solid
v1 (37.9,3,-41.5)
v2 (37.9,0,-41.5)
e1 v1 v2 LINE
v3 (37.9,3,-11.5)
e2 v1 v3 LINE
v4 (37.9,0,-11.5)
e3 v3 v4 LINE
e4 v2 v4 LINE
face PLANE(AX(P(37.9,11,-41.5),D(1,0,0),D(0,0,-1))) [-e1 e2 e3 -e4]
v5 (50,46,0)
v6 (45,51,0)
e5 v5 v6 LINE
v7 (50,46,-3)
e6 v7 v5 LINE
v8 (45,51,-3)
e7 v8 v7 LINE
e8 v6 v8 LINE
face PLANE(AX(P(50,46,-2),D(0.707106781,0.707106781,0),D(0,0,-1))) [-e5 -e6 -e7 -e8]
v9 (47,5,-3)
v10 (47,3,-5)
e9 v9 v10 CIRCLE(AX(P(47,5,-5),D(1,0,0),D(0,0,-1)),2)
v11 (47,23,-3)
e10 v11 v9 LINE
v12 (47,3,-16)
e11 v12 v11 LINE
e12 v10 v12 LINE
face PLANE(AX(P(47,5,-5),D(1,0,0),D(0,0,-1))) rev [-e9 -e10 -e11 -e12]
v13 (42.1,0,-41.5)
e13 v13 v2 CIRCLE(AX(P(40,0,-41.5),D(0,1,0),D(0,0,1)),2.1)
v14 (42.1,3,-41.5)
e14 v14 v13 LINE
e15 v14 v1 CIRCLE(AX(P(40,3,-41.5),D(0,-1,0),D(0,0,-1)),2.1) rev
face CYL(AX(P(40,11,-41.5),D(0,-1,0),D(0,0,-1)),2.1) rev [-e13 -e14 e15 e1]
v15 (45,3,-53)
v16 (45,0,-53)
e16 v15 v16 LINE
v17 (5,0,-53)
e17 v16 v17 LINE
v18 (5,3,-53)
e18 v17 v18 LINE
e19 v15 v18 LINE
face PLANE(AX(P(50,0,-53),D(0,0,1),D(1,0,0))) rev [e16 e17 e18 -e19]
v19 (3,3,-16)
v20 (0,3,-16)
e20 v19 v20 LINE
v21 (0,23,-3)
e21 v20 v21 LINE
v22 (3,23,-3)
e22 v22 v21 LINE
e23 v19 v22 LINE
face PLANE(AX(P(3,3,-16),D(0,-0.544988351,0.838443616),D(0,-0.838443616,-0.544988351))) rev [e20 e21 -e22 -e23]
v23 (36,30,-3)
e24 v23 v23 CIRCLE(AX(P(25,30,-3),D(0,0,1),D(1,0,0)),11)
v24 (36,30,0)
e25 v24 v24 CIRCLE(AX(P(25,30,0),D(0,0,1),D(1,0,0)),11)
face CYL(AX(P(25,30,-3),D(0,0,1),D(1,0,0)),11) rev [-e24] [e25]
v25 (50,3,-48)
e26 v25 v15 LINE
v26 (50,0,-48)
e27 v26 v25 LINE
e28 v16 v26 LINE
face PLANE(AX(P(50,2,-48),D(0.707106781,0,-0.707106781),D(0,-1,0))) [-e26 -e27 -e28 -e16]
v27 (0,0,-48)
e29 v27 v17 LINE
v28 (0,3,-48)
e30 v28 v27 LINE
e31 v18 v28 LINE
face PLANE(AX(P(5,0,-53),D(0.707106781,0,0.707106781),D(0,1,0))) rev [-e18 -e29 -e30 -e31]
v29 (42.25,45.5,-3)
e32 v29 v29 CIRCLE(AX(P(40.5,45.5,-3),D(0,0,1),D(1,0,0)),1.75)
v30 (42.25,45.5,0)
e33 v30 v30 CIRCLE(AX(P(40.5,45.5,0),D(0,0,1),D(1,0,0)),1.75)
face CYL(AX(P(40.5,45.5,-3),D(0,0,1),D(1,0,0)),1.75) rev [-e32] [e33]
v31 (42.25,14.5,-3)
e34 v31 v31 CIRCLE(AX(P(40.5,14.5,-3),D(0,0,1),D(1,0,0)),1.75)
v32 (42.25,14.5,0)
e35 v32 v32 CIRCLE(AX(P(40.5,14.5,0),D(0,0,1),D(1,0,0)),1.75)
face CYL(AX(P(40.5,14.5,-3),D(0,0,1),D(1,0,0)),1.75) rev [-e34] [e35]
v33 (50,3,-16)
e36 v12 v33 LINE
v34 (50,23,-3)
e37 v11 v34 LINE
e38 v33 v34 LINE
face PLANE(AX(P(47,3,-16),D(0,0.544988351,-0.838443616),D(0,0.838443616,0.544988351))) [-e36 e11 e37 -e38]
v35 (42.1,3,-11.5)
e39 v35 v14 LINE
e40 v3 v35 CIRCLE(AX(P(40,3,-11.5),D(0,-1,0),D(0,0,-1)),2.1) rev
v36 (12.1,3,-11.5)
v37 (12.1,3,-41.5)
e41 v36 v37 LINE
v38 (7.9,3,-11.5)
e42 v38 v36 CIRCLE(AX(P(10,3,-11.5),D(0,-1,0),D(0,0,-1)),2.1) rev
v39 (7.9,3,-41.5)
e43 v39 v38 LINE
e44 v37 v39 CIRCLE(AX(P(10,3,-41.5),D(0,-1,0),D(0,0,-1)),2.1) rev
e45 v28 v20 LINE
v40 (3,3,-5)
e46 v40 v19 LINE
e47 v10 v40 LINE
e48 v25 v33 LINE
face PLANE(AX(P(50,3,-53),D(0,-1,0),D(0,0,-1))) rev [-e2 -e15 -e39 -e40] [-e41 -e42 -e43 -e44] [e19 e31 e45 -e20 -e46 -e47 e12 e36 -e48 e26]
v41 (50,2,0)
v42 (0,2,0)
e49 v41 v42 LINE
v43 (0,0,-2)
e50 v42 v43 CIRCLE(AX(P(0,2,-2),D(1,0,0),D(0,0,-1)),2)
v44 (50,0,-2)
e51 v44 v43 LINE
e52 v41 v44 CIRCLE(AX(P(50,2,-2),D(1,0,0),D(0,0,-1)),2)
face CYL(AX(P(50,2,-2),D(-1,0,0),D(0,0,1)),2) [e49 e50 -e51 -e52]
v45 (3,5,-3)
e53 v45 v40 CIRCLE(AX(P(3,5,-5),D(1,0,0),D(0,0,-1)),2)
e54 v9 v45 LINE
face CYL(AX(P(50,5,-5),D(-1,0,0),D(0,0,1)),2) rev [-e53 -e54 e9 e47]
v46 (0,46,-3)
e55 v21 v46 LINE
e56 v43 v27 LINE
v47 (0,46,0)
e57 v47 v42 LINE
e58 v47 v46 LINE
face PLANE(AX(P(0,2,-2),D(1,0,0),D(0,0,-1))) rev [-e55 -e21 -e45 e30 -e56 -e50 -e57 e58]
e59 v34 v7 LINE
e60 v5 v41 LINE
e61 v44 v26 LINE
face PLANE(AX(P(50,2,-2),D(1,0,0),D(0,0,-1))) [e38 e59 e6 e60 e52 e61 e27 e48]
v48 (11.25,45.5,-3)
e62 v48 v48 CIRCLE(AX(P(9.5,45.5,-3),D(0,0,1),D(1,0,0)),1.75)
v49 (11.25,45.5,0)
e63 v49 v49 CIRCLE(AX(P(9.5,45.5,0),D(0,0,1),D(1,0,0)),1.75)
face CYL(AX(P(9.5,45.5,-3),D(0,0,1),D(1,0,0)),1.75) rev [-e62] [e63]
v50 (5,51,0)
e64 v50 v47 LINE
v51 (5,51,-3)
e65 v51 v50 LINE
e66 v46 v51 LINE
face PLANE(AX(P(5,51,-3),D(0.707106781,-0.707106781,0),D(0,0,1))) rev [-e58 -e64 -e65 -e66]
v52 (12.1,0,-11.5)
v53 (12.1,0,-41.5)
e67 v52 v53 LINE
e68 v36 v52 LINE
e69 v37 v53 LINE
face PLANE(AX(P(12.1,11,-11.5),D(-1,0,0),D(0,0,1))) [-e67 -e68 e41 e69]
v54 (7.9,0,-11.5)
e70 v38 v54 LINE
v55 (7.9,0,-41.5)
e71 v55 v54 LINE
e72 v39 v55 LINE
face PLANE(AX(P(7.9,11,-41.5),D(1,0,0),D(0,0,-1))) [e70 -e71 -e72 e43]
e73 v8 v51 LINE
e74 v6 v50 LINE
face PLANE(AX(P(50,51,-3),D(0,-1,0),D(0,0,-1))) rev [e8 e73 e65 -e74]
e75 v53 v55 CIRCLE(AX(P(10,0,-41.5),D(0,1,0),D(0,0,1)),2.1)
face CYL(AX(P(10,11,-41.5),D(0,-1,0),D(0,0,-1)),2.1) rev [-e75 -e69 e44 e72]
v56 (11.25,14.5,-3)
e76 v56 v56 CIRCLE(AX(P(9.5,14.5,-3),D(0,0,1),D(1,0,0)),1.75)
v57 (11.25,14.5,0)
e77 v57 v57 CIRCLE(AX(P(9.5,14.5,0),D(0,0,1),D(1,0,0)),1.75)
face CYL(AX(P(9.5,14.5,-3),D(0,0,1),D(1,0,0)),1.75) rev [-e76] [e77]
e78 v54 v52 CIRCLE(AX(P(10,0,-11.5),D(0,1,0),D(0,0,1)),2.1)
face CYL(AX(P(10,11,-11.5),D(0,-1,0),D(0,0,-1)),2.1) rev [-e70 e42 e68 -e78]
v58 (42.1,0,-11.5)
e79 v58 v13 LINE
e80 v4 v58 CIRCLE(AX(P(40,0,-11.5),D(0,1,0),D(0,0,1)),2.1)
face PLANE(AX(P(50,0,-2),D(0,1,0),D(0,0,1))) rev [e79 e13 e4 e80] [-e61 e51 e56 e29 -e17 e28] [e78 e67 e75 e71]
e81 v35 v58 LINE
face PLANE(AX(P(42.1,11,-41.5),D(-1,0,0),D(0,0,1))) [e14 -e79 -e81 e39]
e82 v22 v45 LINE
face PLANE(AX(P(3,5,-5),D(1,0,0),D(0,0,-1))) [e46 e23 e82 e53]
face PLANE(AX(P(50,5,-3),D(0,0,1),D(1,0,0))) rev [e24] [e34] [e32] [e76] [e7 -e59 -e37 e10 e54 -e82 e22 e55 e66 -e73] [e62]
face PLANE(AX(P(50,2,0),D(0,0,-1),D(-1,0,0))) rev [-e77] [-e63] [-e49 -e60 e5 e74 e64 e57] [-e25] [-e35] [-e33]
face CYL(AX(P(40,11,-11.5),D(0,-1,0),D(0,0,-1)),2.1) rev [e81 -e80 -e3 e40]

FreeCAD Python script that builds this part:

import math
import FreeCAD as App
import Part
import Sketcher

V = App.Vector
Q = App.Units.Quantity


def edges_at(feature, points):
    """Names of the edges that pass closest to the given points."""
    edges = feature.Shape.Edges
    near = lambda p: min(range(len(edges)), key=lambda i: edges[i].distToShape(Part.Vertex(*p))[0])
    return sorted({f"Edge{near(p) + 1}" for p in points})

doc = App.newDocument("Part")
body = doc.addObject("PartDesign::Body", "Body")

# Sketch on YZ plane
sketch1 = body.newObject("Sketcher::SketchObject", "Sketch")
sketch1.AttachmentSupport = (doc.getObject("YZ_Plane"), [""])
sketch1.MapMode = "FlatFace"
sketch1.addGeometry(Part.LineSegment(V(51, 0, 0), V(2, 0, 0)), False)
sketch1.addGeometry(Part.ArcOfCircle(Part.Circle(V(2, -2, 0), V(0, 0, 1), 2), math.radians(90), math.radians(180)), False)
sketch1.addGeometry(Part.LineSegment(V(0, -2, 0), V(0, -53, 0)), False)
sketch1.addGeometry(Part.LineSegment(V(0, -53, 0), V(3, -53, 0)), False)
sketch1.addGeometry(Part.LineSegment(V(3, -53, 0), V(3, -5, 0)), False)
sketch1.addGeometry(Part.ArcOfCircle(Part.Circle(V(5, -5, 0), V(0, 0, 1), 2), math.radians(90), math.radians(180)), False)
sketch1.addGeometry(Part.LineSegment(V(5, -3, 0), V(51, -3, 0)), False)
sketch1.addGeometry(Part.LineSegment(V(51, -3, 0), V(51, 0, 0)), False)
sketch1.addConstraint(Sketcher.Constraint("Tangent", 0, 2, 1, 1))
sketch1.addConstraint(Sketcher.Constraint("Tangent", 1, 2, 2, 1))
sketch1.addConstraint(Sketcher.Constraint("Coincident", 2, 2, 3, 1))
sketch1.addConstraint(Sketcher.Constraint("Coincident", 3, 2, 4, 1))
sketch1.addConstraint(Sketcher.Constraint("Tangent", 4, 2, 5, 2))
sketch1.addConstraint(Sketcher.Constraint("Tangent", 5, 1, 6, 1))
sketch1.addConstraint(Sketcher.Constraint("Coincident", 6, 2, 7, 1))
sketch1.addConstraint(Sketcher.Constraint("Coincident", 7, 2, 0, 1))
sketch1.addConstraint(Sketcher.Constraint("Horizontal", 0))
sketch1.addConstraint(Sketcher.Constraint("Vertical", 2))
sketch1.addConstraint(Sketcher.Constraint("Horizontal", 3))
sketch1.addConstraint(Sketcher.Constraint("Vertical", 4))
sketch1.addConstraint(Sketcher.Constraint("Horizontal", 6))
sketch1.addConstraint(Sketcher.Constraint("Vertical", 7))
sketch1.addConstraint(Sketcher.Constraint("Equal", 1, 5))
sketch1.addConstraint(Sketcher.Constraint("PointOnObject", 0, 2, -1))
sketch1.addConstraint(Sketcher.Constraint("PointOnObject", 1, 2, -2))
sketch1.addConstraint(Sketcher.Constraint("Equal", 3, 7))
sketch1.addConstraint(Sketcher.Constraint("Radius", 1, Q("2 mm")))
sketch1.addConstraint(Sketcher.Constraint("DistanceX", 0, 2, 0, 1, Q("49 mm")))
sketch1.addConstraint(Sketcher.Constraint("DistanceX", 3, 1, 3, 2, Q("3 mm")))
sketch1.addConstraint(Sketcher.Constraint("DistanceY", 2, 2, 2, 1, Q("51 mm")))
pad1 = body.newObject("PartDesign::Pad", "Pad")
pad1.Profile = sketch1
pad1.Length = 50

# Sketch on YZ plane
sketch2 = body.newObject("Sketcher::SketchObject", "Sketch001")
sketch2.AttachmentSupport = (doc.getObject("YZ_Plane"), [""])
sketch2.MapMode = "FlatFace"
sketch2.addGeometry(Part.LineSegment(V(23, -3, 0), V(5, -3, 0)), False)
sketch2.addGeometry(Part.ArcOfCircle(Part.Circle(V(5, -5, 0), V(0, 0, 1), 2), math.radians(90), math.radians(180)), False)
sketch2.addGeometry(Part.LineSegment(V(3, -5, 0), V(3, -16, 0)), False)
sketch2.addGeometry(Part.LineSegment(V(3, -16, 0), V(23, -3, 0)), False)
sketch2.addConstraint(Sketcher.Constraint("Tangent", 0, 2, 1, 1))
sketch2.addConstraint(Sketcher.Constraint("Tangent", 1, 2, 2, 1))
sketch2.addConstraint(Sketcher.Constraint("Coincident", 2, 2, 3, 1))
sketch2.addConstraint(Sketcher.Constraint("Coincident", 3, 2, 0, 1))
sketch2.addConstraint(Sketcher.Constraint("Horizontal", 0))
sketch2.addConstraint(Sketcher.Constraint("Vertical", 2))
sketch2.addConstraint(Sketcher.Constraint("Radius", 1, Q("2 mm")))
sketch2.addConstraint(Sketcher.Constraint("DistanceX", 0, 2, 0, 1, Q("18 mm")))
sketch2.addConstraint(Sketcher.Constraint("DistanceY", 2, 2, 2, 1, Q("11 mm")))
sketch2.addConstraint(Sketcher.Constraint("DistanceX", -1, 1, 1, 3, Q("5 mm")))
sketch2.addConstraint(Sketcher.Constraint("DistanceY", 1, 3, -1, 1, Q("5 mm")))
pad2 = body.newObject("PartDesign::Pad", "Pad001")
pad2.Profile = sketch2
pad2.Length = 3

# Sketch on YZ plane
sketch3 = body.newObject("Sketcher::SketchObject", "Sketch002")
sketch3.AttachmentSupport = (doc.getObject("YZ_Plane"), [""])
sketch3.MapMode = "FlatFace"
sketch3.AttachmentOffset = App.Placement(V(0, 0, 47), App.Rotation())
sketch3.addGeometry(Part.LineSegment(V(23, -3, 0), V(5, -3, 0)), False)
sketch3.addGeometry(Part.ArcOfCircle(Part.Circle(V(5, -5, 0), V(0, 0, 1), 2), math.radians(90), math.radians(180)), False)
sketch3.addGeometry(Part.LineSegment(V(3, -5, 0), V(3, -16, 0)), False)
sketch3.addGeometry(Part.LineSegment(V(3, -16, 0), V(23, -3, 0)), False)
sketch3.addConstraint(Sketcher.Constraint("Tangent", 0, 2, 1, 1))
sketch3.addConstraint(Sketcher.Constraint("Tangent", 1, 2, 2, 1))
sketch3.addConstraint(Sketcher.Constraint("Coincident", 2, 2, 3, 1))
sketch3.addConstraint(Sketcher.Constraint("Coincident", 3, 2, 0, 1))
sketch3.addConstraint(Sketcher.Constraint("Horizontal", 0))
sketch3.addConstraint(Sketcher.Constraint("Vertical", 2))
sketch3.addConstraint(Sketcher.Constraint("Radius", 1, Q("2 mm")))
sketch3.addConstraint(Sketcher.Constraint("DistanceX", 0, 2, 0, 1, Q("18 mm")))
sketch3.addConstraint(Sketcher.Constraint("DistanceY", 2, 2, 2, 1, Q("11 mm")))
sketch3.addConstraint(Sketcher.Constraint("DistanceX", -1, 1, 1, 3, Q("5 mm")))
sketch3.addConstraint(Sketcher.Constraint("DistanceY", 1, 3, -1, 1, Q("5 mm")))
pad3 = body.newObject("PartDesign::Pad", "Pad002")
pad3.Profile = sketch3
pad3.Length = 3

# Sketch on XY plane
sketch4 = body.newObject("Sketcher::SketchObject", "Sketch003")
sketch4.AttachmentSupport = (doc.getObject("XY_Plane"), [""])
sketch4.MapMode = "FlatFace"
sketch4.addGeometry(Part.Circle(V(25, 30, 0), V(0, 0, 1), 11), False)
sketch4.addGeometry(Part.Circle(V(9.5, 45.5, 0), V(0, 0, 1), 1.8), False)
sketch4.addGeometry(Part.Circle(V(40.5, 45.5, 0), V(0, 0, 1), 1.8), False)
sketch4.addGeometry(Part.Circle(V(9.5, 14.5, 0), V(0, 0, 1), 1.8), False)
sketch4.addGeometry(Part.Circle(V(40.5, 14.5, 0), V(0, 0, 1), 1.8), False)
sketch4.addConstraint(Sketcher.Constraint("Equal", 1, 2))
sketch4.addConstraint(Sketcher.Constraint("Equal", 2, 3))
sketch4.addConstraint(Sketcher.Constraint("Equal", 3, 4))
sketch4.addConstraint(Sketcher.Constraint("Horizontal", 1, 3, 2, 3))
sketch4.addConstraint(Sketcher.Constraint("Horizontal", 3, 3, 4, 3))
sketch4.addConstraint(Sketcher.Constraint("Vertical", 1, 3, 3, 3))
sketch4.addConstraint(Sketcher.Constraint("Vertical", 2, 3, 4, 3))
sketch4.addConstraint(Sketcher.Constraint("Diameter", 0, Q("22 mm")))
sketch4.addConstraint(Sketcher.Constraint("Diameter", 1, Q("3.5 mm")))
sketch4.addConstraint(Sketcher.Constraint("DistanceX", -1, 1, 0, 3, Q("25 mm")))
sketch4.addConstraint(Sketcher.Constraint("DistanceY", -1, 1, 0, 3, Q("30 mm")))
sketch4.addConstraint(Sketcher.Constraint("DistanceX", 1, 3, 2, 3, Q("31 mm")))
sketch4.addConstraint(Sketcher.Constraint("DistanceY", 3, 3, 1, 3, Q("31 mm")))
sketch4.addConstraint(Sketcher.Constraint("DistanceX", -1, 1, 1, 3, Q("9.5 mm")))
sketch4.addConstraint(Sketcher.Constraint("DistanceY", -1, 1, 1, 3, Q("45.5 mm")))
pocket1 = body.newObject("PartDesign::Pocket", "Pocket")
pocket1.Profile = sketch4
pocket1.Length = 3

# Sketch on XZ plane
sketch5 = body.newObject("Sketcher::SketchObject", "Sketch004")
sketch5.AttachmentSupport = (doc.getObject("XZ_Plane"), [""])
sketch5.MapMode = "FlatFace"
sketch5.addGeometry(Part.LineSegment(V(7.9, -41.5, 0), V(7.9, -11.5, 0)), False)
sketch5.addGeometry(Part.ArcOfCircle(Part.Circle(V(10, -11.5, 0), V(0, 0, 1), 2.1), math.radians(0), math.radians(180)), False)
sketch5.addGeometry(Part.LineSegment(V(12.1, -11.5, 0), V(12.1, -41.5, 0)), False)
sketch5.addGeometry(Part.ArcOfCircle(Part.Circle(V(10, -41.5, 0), V(0, 0, 1), 2.1), math.radians(180), math.radians(360)), False)
sketch5.addGeometry(Part.LineSegment(V(37.9, -41.5, 0), V(37.9, -11.5, 0)), False)
sketch5.addGeometry(Part.ArcOfCircle(Part.Circle(V(40, -11.5, 0), V(0, 0, 1), 2.1), math.radians(0), math.radians(180)), False)
sketch5.addGeometry(Part.LineSegment(V(42.1, -11.5, 0), V(42.1, -41.5, 0)), False)
sketch5.addGeometry(Part.ArcOfCircle(Part.Circle(V(40, -41.5, 0), V(0, 0, 1), 2.1), math.radians(180), math.radians(360)), False)
sketch5.addConstraint(Sketcher.Constraint("Tangent", 0, 2, 1, 2))
sketch5.addConstraint(Sketcher.Constraint("Tangent", 1, 1, 2, 1))
sketch5.addConstraint(Sketcher.Constraint("Tangent", 2, 2, 3, 2))
sketch5.addConstraint(Sketcher.Constraint("Tangent", 3, 1, 0, 1))
sketch5.addConstraint(Sketcher.Constraint("Tangent", 4, 2, 5, 2))
sketch5.addConstraint(Sketcher.Constraint("Tangent", 5, 1, 6, 1))
sketch5.addConstraint(Sketcher.Constraint("Tangent", 6, 2, 7, 2))
sketch5.addConstraint(Sketcher.Constraint("Tangent", 7, 1, 4, 1))
sketch5.addConstraint(Sketcher.Constraint("Vertical", 0))
sketch5.addConstraint(Sketcher.Constraint("Vertical", 2))
sketch5.addConstraint(Sketcher.Constraint("Vertical", 4))
sketch5.addConstraint(Sketcher.Constraint("Vertical", 6))
sketch5.addConstraint(Sketcher.Constraint("Equal", 3, 5))
sketch5.addConstraint(Sketcher.Constraint("Horizontal", 1, 3, 5, 3))
sketch5.addConstraint(Sketcher.Constraint("Horizontal", 3, 3, 7, 3))
sketch5.addConstraint(Sketcher.Constraint("Radius", 1, Q("2.1 mm")))
sketch5.addConstraint(Sketcher.Constraint("DistanceY", 0, 1, 0, 2, Q("30 mm")))
sketch5.addConstraint(Sketcher.Constraint("DistanceX", -1, 1, 1, 3, Q("10 mm")))
sketch5.addConstraint(Sketcher.Constraint("DistanceX", -1, 1, 5, 3, Q("40 mm")))
sketch5.addConstraint(Sketcher.Constraint("DistanceY", 1, 3, -1, 1, Q("11.5 mm")))
pocket2 = body.newObject("PartDesign::Pocket", "Pocket001")
pocket2.Profile = sketch5
pocket2.Length = 11
doc.recompute()

chamfer = body.newObject("PartDesign::Chamfer", "Chamfer")
chamfer.Base = (pocket2, edges_at(pocket2, [
    (0, 51, -1.5),
    (50, 1.5, -53),
    (50, 51, -1.5),
    (0, 1.5, -53),
]))
chamfer.Size = 5

doc.recompute()
